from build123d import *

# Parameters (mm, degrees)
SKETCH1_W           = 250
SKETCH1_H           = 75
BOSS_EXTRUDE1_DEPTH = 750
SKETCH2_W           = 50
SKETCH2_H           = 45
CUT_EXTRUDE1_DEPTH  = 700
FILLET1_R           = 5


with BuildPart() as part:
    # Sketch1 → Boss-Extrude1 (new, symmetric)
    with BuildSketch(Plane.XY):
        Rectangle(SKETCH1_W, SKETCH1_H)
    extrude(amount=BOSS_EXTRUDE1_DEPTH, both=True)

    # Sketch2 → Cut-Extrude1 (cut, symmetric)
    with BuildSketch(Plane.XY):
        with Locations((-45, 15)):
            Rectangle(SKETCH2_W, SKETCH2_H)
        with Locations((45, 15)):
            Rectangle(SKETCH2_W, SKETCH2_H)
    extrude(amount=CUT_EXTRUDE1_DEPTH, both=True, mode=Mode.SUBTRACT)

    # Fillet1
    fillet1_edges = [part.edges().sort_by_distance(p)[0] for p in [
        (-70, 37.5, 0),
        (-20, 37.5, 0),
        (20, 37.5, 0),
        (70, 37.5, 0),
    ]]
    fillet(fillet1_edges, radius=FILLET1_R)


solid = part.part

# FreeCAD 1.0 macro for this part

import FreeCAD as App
import Part
import Sketcher
Q = App.Units.Quantity


def edges_at(feature, points):
    """Names of the edges that pass closest to the given points."""
    edges = feature.Shape.Edges
    near = lambda p: min(range(len(edges)), key=lambda i: edges[i].distToShape(Part.Vertex(*p))[0])
    return sorted({f"Edge{near(p) + 1}" for p in points})


def add_polygon(sketch, points):
    """Adds a closed chain of lines whose ends are joined by coincident constraints."""
    first, n = sketch.GeometryCount, len(points)
    for a, b in zip(points, points[1:] + points[:1]):
        sketch.addGeometry(Part.LineSegment(App.Vector(*a, 0), App.Vector(*b, 0)), False)
    for i in range(n):
        sketch.addConstraint(Sketcher.Constraint("Coincident", first + i, 2, first + (i + 1) % n, 1))

doc = App.newDocument("Part")
params = doc.addObject("Spreadsheet::Sheet", "Params")
for row, (alias, value) in enumerate([
    ("sketch1_width", "250 mm"),
    ("sketch1_height", "75 mm"),
    ("pad1_length", "1500 mm"),
    ("sketch2_width", "50 mm"),
    ("sketch2_height", "45 mm"),
    ("pocket1_length", "1400 mm"),
    ("fillet_radius", "5 mm"),
], start=1):
    params.set(f"A{row}", alias)
    params.set(f"B{row}", "=" + value)
    params.setAlias(f"B{row}", alias)

body = doc.addObject("PartDesign::Body", "Body")

# Sketch on XY plane
sketch1 = doc.addObject("Sketcher::SketchObject", "Sketch")
body.addObject(sketch1)
sketch1.AttachmentSupport = (doc.XY_Plane, [""])
sketch1.MapMode = "FlatFace"
add_polygon(sketch1, [(-125, 38), (-125, -38), (125, -38), (125, 38)])  # lines 0-3
sketch1.addConstraint([
    Sketcher.Constraint("Vertical", 0),
    Sketcher.Constraint("Horizontal", 1),
    Sketcher.Constraint("Vertical", 2),
    Sketcher.Constraint("Horizontal", 3),
    Sketcher.Constraint("Symmetric", 0, 2, 2, 2, -1, 1),
    Sketcher.Constraint("DistanceX", 1, 1, 1, 2, Q("250 mm")),
    Sketcher.Constraint("DistanceY", 0, 2, 0, 1, Q("75 mm")),
])
sketch1.setExpression("Constraints[9]", "Params.sketch1_width")
sketch1.setExpression("Constraints[10]", "Params.sketch1_height")
pad1 = doc.addObject("PartDesign::Pad", "Pad")
body.addObject(pad1)
pad1.Profile = sketch1
pad1.setExpression("Length", "Params.pad1_length")
pad1.Midplane = True

# Sketch on XY plane
sketch2 = doc.addObject("Sketcher::SketchObject", "Sketch001")
body.addObject(sketch2)
sketch2.AttachmentSupport = (doc.XY_Plane, [""])
sketch2.MapMode = "FlatFace"
add_polygon(sketch2, [(-70, 38), (-70, -8), (-20, -8), (-20, 38)])  # lines 0-3
add_polygon(sketch2, [(20, 38), (20, -8), (70, -8), (70, 38)])  # lines 4-7
sketch2.addConstraint([
    Sketcher.Constraint("Vertical", 0),
    Sketcher.Constraint("Horizontal", 1),
    Sketcher.Constraint("Vertical", 2),
    Sketcher.Constraint("Horizontal", 3),
    Sketcher.Constraint("Vertical", 4),
    Sketcher.Constraint("Horizontal", 5),
    Sketcher.Constraint("Vertical", 6),
    Sketcher.Constraint("Horizontal", 7),
    Sketcher.Constraint("Symmetric", 1, 2, 4, 2, -2),
    Sketcher.Constraint("Symmetric", 3, 2, 6, 2, -2),
    Sketcher.Constraint("DistanceX", 1, 1, 1, 2, Q("50 mm")),
    Sketcher.Constraint("DistanceY", 0, 2, 0, 1, Q("45 mm")),
    Sketcher.Constraint("DistanceX", 0, 2, -1, 1, Q("70 mm")),
    Sketcher.Constraint("DistanceY", 0, 2, -1, 1, Q("7.5 mm")),
])
sketch2.setExpression("Constraints[18]", "Params.sketch2_width")
sketch2.setExpression("Constraints[19]", "Params.sketch2_height")
pocket1 = doc.addObject("PartDesign::Pocket", "Pocket")
body.addObject(pocket1)
pocket1.Profile = sketch2
pocket1.setExpression("Length", "Params.pocket1_length")
pocket1.Midplane = True
doc.recompute()

fillet = doc.addObject("PartDesign::Fillet", "Fillet")
body.addObject(fillet)
fillet.Base = (pocket1, edges_at(pocket1, [
    (-70, 37.5, 0),
    (-20, 37.5, 0),
    (20, 37.5, 0),
    (70, 37.5, 0),
]))
fillet.setExpression("Radius", "Params.fillet_radius")

doc.recompute()
